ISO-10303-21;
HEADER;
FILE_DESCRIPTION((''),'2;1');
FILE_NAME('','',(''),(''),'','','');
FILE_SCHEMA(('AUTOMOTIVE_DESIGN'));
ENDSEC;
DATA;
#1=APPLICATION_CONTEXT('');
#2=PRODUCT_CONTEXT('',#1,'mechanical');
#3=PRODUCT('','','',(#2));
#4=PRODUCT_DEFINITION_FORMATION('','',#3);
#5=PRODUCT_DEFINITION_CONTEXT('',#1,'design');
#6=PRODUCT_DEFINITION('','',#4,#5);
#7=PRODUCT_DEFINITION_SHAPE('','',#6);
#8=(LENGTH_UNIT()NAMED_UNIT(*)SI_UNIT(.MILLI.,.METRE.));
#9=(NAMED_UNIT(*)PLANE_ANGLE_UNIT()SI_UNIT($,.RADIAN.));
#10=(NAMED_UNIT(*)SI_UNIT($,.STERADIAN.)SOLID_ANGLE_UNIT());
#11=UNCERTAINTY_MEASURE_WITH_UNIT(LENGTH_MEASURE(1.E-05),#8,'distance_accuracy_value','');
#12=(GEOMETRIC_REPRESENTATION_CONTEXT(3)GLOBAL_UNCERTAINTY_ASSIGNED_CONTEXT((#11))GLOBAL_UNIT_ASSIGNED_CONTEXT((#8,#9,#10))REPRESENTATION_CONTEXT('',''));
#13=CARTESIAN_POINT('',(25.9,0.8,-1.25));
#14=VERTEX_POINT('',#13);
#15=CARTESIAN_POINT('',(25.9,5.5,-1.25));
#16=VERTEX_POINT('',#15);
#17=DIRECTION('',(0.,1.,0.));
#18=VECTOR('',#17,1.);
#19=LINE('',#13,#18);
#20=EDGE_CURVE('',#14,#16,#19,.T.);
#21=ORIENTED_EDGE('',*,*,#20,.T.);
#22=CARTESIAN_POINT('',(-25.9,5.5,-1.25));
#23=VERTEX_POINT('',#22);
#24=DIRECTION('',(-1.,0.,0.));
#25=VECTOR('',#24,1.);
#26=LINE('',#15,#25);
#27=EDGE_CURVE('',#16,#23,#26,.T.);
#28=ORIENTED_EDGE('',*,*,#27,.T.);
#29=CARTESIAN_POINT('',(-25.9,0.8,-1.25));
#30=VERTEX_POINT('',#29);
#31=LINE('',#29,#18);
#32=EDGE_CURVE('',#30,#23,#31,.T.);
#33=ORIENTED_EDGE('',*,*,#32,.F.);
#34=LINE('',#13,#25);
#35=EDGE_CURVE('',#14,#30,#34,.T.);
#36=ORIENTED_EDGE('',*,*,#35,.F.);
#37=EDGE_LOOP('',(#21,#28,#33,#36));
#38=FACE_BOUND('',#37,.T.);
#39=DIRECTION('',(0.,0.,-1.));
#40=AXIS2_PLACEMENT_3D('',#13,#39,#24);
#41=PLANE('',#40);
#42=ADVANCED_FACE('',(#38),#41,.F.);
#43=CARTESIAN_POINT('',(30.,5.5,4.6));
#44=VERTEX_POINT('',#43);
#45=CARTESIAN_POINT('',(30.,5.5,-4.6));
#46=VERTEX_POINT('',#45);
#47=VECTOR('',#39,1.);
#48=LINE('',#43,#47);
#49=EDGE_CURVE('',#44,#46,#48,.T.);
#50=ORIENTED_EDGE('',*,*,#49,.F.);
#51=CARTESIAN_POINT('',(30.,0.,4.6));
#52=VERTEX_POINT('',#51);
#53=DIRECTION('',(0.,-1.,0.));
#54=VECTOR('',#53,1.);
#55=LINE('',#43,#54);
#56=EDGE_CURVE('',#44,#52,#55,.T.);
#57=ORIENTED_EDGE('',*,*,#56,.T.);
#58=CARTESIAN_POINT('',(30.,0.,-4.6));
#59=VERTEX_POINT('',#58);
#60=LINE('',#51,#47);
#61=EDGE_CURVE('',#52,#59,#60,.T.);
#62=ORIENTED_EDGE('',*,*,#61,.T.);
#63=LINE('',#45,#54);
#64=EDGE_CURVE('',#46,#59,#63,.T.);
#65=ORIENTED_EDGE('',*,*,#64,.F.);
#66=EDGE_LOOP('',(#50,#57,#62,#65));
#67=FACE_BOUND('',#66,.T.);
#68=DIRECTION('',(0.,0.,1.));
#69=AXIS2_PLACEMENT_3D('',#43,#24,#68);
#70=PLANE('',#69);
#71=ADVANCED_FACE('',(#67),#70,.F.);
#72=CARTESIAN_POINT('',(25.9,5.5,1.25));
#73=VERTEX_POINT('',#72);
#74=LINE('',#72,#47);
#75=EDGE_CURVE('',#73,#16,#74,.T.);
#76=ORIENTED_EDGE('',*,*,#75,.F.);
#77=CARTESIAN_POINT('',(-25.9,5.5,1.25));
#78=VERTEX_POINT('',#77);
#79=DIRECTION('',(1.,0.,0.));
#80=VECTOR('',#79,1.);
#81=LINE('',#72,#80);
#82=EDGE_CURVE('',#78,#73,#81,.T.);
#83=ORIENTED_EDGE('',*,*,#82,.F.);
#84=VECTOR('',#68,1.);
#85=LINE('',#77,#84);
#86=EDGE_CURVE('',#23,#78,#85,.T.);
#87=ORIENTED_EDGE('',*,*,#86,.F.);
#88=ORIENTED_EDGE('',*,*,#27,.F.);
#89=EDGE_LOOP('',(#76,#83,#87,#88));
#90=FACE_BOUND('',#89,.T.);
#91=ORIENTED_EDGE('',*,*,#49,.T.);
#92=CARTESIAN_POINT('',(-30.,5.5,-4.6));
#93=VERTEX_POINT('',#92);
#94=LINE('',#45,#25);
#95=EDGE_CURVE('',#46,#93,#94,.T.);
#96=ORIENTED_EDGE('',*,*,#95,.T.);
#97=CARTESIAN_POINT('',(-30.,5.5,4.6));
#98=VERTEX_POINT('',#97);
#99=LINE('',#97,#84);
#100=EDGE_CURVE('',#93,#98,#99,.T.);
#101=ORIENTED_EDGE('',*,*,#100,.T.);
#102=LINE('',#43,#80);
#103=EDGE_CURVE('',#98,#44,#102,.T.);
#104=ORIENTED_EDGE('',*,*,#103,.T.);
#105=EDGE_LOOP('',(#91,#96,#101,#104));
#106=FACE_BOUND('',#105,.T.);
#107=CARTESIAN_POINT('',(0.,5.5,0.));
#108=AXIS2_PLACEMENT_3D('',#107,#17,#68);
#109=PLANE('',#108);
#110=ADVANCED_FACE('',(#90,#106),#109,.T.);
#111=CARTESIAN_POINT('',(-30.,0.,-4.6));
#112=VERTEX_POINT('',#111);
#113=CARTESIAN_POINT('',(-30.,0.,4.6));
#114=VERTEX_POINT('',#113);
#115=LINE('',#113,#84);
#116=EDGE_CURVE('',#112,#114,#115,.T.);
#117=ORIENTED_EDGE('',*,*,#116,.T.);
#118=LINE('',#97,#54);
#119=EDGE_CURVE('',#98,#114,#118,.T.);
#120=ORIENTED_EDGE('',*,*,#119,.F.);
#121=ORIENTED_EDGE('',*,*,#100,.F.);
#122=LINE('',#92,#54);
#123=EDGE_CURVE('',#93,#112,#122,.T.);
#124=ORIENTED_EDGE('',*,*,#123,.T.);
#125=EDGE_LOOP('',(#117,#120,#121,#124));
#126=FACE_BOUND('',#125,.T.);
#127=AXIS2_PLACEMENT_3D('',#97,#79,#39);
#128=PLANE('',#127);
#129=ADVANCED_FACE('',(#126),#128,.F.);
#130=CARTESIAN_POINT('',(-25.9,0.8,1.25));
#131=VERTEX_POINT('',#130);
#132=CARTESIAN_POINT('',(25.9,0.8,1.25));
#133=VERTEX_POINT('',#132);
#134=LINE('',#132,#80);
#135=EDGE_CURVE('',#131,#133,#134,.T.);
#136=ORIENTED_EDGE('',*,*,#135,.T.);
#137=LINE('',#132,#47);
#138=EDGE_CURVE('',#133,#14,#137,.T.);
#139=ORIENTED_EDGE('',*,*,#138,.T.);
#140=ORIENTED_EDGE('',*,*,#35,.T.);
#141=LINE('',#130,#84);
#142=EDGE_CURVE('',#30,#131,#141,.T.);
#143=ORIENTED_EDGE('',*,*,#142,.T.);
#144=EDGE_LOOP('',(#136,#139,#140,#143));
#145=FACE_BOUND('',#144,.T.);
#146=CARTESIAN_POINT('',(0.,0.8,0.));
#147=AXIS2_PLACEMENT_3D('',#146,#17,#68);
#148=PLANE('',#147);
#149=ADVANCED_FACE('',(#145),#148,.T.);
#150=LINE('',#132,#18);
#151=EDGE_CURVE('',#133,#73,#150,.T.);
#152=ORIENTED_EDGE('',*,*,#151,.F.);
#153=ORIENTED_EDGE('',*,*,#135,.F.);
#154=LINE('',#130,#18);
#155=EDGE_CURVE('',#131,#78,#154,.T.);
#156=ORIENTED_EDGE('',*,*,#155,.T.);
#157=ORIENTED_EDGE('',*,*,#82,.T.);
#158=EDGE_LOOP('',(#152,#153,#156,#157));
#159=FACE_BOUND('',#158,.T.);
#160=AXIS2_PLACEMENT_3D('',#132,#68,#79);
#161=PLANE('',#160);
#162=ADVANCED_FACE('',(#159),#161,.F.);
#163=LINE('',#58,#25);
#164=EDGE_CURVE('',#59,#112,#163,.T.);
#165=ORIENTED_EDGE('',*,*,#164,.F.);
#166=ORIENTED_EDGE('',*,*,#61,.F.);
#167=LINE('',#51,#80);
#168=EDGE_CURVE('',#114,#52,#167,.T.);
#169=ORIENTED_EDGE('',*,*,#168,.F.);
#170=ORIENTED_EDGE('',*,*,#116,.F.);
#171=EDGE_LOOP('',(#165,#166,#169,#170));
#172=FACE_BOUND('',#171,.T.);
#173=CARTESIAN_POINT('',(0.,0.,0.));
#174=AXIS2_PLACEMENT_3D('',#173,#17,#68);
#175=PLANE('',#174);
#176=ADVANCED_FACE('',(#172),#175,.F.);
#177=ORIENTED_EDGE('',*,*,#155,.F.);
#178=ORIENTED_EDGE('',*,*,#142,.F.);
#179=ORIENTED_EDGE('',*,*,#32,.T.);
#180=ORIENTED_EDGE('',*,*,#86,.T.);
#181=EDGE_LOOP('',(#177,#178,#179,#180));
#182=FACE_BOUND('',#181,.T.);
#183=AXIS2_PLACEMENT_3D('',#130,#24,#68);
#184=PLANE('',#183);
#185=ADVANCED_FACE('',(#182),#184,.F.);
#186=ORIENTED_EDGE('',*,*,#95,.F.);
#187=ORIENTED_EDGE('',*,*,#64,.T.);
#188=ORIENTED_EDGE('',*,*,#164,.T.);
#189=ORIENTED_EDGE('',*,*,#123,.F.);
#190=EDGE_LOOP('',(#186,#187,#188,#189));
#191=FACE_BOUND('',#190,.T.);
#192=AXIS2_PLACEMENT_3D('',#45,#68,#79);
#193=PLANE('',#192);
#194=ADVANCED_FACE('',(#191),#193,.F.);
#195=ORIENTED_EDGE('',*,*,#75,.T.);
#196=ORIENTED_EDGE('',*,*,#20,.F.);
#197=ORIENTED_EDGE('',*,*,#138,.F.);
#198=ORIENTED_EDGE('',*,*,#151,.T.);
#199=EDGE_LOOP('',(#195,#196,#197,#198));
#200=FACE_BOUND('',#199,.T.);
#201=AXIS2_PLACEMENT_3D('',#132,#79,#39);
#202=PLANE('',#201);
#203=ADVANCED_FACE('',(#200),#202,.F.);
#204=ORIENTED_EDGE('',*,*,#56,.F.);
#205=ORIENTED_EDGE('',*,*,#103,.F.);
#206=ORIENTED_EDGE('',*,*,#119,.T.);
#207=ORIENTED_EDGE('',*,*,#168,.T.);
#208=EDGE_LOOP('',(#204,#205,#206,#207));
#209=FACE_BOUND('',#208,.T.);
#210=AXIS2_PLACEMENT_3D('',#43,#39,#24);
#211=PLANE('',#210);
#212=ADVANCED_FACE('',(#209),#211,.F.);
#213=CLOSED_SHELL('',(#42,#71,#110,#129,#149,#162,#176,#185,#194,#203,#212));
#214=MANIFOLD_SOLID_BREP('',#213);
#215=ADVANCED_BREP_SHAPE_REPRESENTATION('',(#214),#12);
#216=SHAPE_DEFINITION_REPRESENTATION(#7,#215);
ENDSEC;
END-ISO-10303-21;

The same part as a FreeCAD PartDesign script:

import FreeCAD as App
import Part
import Sketcher

V = App.Vector

doc = App.newDocument("Part")
body = doc.addObject("PartDesign::Body", "Body")

# Sketch on XZ plane
sketch1 = body.newObject("Sketcher::SketchObject", "Sketch")
sketch1.AttachmentSupport = (doc.getObject("XZ_Plane"), [""])
sketch1.MapMode = "FlatFace"
sketch1.addGeometry([
    Part.LineSegment(V(-30, -5, 0), V(-30, 5, 0)),
    Part.LineSegment(V(-30, 5, 0), V(30, 5, 0)),
    Part.LineSegment(V(30, 5, 0), V(30, -5, 0)),
    Part.LineSegment(V(30, -5, 0), V(-30, -5, 0)),
], False)
sketch1.addConstraint([
    Sketcher.Constraint("Coincident", 0, 2, 1, 1),
    Sketcher.Constraint("Coincident", 1, 2, 2, 1),
    Sketcher.Constraint("Coincident", 2, 2, 3, 1),
    Sketcher.Constraint("Coincident", 3, 2, 0, 1),
    Sketcher.Constraint("Vertical", 0),
    Sketcher.Constraint("Horizontal", 1),
    Sketcher.Constraint("Vertical", 2),
    Sketcher.Constraint("Horizontal", 3),
    Sketcher.Constraint("Symmetric", 0, 2, 2, 2, -1, 1),
    Sketcher.Constraint("DistanceX", 1, 1, 1, 2, 60.0),
    Sketcher.Constraint("DistanceY", 0, 1, 0, 2, 9.2),
])
pad1 = body.newObject("PartDesign::Pad", "Pad")
pad1.Profile = sketch1
pad1.Length = 5.5
pad1.Reversed = True

# Sketch on XZ plane
sketch2 = body.newObject("Sketcher::SketchObject", "Sketch001")
sketch2.AttachmentSupport = (doc.getObject("XZ_Plane"), [""])
sketch2.MapMode = "FlatFace"
sketch2.AttachmentOffset = App.Placement(V(0, 0, -5.5), App.Rotation())
sketch2.addGeometry([
    Part.LineSegment(V(-25.9, -1.2, 0), V(-25.9, 1.2, 0)),
    Part.LineSegment(V(-25.9, 1.2, 0), V(25.9, 1.2, 0)),
    Part.LineSegment(V(25.9, 1.2, 0), V(25.9, -1.2, 0)),
    Part.LineSegment(V(25.9, -1.2, 0), V(-25.9, -1.2, 0)),
], False)
sketch2.addConstraint([
    Sketcher.Constraint("Coincident", 0, 2, 1, 1),
    Sketcher.Constraint("Coincident", 1, 2, 2, 1),
    Sketcher.Constraint("Coincident", 2, 2, 3, 1),
    Sketcher.Constraint("Coincident", 3, 2, 0, 1),
    Sketcher.Constraint("Vertical", 0),
    Sketcher.Constraint("Horizontal", 1),
    Sketcher.Constraint("Vertical", 2),
    Sketcher.Constraint("Horizontal", 3),
    Sketcher.Constraint("Symmetric", 0, 2, 2, 2, -1, 1),
    Sketcher.Constraint("DistanceX", 1, 1, 1, 2, 51.8),
    Sketcher.Constraint("DistanceY", 0, 1, 0, 2, 2.5),
])
pocket1 = body.newObject("PartDesign::Pocket", "Pocket")
pocket1.Profile = sketch2
pocket1.Length = 4.7
pocket1.Reversed = True

doc.recompute()
